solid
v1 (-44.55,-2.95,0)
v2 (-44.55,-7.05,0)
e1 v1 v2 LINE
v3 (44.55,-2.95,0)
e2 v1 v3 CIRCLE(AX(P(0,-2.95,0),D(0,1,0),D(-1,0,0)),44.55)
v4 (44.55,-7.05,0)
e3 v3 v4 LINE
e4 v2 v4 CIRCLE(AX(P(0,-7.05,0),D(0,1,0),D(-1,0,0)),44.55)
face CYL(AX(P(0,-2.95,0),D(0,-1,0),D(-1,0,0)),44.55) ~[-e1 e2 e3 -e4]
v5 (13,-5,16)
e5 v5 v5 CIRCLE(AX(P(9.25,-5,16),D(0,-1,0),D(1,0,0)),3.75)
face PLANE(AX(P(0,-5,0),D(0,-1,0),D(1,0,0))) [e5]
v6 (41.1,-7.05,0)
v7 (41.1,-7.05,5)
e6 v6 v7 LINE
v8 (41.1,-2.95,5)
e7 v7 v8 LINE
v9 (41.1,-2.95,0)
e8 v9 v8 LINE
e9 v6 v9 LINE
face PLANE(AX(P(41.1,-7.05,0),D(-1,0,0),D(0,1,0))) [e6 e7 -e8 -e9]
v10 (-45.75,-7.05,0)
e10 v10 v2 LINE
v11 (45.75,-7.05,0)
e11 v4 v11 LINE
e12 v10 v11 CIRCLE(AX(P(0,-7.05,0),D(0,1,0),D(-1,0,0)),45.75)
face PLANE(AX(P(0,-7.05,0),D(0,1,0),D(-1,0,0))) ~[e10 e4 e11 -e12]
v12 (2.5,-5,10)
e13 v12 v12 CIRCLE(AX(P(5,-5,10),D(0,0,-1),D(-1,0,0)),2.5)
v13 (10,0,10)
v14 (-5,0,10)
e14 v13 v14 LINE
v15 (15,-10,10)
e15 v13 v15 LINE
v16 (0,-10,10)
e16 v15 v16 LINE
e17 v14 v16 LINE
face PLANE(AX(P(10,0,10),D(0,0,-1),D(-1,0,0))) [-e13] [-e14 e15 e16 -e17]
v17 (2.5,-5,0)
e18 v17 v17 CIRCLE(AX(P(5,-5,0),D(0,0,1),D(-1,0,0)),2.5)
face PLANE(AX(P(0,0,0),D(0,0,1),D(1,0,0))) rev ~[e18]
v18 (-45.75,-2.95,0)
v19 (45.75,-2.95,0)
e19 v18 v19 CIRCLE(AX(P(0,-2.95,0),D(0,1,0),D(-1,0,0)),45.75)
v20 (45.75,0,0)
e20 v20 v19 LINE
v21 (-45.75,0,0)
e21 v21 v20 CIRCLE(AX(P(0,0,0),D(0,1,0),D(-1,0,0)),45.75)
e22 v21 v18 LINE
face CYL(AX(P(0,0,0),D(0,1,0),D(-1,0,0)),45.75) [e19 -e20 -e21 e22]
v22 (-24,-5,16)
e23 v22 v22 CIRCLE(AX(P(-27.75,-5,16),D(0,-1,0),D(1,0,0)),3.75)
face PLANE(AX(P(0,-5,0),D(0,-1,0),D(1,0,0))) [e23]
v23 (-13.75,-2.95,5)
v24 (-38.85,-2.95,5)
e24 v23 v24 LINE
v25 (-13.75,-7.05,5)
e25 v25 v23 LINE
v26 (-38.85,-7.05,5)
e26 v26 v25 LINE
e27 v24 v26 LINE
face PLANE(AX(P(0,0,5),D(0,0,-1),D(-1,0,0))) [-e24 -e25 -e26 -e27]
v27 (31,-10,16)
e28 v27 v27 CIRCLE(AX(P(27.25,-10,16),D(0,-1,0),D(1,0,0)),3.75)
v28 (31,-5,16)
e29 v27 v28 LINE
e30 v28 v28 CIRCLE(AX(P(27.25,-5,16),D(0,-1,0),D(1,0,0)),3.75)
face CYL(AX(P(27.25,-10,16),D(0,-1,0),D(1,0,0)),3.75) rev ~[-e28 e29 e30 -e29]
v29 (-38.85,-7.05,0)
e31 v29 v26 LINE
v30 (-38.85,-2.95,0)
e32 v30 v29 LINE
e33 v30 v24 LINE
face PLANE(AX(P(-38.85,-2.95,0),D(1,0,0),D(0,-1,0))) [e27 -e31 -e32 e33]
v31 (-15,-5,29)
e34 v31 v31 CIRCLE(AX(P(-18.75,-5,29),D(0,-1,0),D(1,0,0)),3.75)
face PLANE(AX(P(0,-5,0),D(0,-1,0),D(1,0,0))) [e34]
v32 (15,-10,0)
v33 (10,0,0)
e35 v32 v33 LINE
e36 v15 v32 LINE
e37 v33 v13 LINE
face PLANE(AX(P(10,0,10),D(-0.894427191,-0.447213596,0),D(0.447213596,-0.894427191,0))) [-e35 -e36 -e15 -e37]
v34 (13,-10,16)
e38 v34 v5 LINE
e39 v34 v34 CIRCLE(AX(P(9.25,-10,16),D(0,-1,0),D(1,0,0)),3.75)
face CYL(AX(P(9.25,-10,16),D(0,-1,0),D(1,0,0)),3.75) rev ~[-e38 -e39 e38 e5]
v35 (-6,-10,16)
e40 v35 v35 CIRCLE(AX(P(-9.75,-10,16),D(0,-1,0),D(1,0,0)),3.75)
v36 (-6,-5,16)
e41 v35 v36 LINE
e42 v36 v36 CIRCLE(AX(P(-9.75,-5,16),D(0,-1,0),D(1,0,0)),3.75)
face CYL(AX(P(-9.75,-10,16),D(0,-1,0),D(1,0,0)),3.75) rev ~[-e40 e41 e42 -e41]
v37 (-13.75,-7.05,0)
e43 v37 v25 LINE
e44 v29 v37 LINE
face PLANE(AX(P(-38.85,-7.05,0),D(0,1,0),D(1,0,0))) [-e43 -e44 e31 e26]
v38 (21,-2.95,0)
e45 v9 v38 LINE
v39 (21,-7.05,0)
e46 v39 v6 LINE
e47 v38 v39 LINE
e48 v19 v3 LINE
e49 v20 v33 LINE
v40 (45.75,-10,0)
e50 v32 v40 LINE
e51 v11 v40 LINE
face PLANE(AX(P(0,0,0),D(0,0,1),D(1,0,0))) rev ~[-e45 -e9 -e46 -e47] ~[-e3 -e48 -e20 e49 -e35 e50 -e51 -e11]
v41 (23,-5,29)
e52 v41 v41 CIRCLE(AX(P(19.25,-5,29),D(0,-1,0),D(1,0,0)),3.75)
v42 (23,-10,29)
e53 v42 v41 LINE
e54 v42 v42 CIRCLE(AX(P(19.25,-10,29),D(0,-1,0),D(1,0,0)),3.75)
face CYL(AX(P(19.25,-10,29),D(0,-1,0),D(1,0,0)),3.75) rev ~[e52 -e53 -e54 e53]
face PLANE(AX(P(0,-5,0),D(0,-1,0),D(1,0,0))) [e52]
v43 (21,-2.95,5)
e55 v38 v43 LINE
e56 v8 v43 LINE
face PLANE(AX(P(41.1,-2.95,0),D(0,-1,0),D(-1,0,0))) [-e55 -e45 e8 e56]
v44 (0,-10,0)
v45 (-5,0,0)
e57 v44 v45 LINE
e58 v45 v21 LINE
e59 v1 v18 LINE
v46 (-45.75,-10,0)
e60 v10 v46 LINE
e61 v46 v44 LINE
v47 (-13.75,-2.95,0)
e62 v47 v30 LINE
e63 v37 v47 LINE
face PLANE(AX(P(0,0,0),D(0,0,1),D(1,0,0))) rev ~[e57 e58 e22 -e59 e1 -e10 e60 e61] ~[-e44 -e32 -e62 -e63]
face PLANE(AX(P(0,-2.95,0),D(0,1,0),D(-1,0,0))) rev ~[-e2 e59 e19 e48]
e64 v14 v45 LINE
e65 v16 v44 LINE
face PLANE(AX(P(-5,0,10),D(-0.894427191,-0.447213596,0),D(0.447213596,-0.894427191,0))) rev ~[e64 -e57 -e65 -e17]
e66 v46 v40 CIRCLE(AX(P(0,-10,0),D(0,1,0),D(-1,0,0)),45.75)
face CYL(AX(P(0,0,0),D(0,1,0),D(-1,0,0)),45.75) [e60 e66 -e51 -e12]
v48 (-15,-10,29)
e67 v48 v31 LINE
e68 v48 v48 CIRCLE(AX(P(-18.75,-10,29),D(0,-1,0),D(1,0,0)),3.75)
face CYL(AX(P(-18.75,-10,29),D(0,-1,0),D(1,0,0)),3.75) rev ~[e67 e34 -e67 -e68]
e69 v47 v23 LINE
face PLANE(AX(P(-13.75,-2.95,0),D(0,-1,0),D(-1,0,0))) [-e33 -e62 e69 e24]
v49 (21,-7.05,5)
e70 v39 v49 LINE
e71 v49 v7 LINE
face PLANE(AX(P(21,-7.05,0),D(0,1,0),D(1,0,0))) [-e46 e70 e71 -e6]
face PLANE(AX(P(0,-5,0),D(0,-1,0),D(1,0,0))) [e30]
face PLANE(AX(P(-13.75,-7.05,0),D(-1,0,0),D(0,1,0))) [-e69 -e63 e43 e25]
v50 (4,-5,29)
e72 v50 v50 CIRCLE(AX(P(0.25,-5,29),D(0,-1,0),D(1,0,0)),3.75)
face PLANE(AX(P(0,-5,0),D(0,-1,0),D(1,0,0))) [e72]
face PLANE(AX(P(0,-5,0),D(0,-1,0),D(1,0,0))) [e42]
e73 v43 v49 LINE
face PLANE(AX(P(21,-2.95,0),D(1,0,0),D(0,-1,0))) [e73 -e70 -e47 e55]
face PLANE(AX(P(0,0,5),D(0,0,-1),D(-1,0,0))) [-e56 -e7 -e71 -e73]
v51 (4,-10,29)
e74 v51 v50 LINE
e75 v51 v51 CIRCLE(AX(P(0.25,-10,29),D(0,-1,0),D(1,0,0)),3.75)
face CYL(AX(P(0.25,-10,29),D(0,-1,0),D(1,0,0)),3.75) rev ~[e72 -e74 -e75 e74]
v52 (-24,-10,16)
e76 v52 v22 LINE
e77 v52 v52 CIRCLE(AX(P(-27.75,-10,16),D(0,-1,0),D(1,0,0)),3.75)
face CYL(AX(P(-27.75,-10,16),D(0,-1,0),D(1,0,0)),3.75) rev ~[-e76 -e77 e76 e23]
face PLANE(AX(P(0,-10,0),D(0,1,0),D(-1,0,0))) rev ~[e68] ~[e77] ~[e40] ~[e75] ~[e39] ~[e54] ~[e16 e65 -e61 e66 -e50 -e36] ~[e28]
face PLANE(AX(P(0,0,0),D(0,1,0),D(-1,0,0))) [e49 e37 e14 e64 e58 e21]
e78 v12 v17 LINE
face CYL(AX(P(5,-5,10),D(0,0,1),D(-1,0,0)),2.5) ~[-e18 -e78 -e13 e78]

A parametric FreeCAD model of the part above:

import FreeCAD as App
import Part
import Sketcher


def add_polygon(sketch, points):
    """Adds a closed chain of lines whose ends are joined by coincident constraints."""
    first, n = sketch.GeometryCount, len(points)
    for a, b in zip(points, points[1:] + points[:1]):
        sketch.addGeometry(Part.LineSegment(App.Vector(*a, 0), App.Vector(*b, 0)), False)
    for i in range(n):
        sketch.addConstraint(Sketcher.Constraint("Coincident", first + i, 2, first + (i + 1) % n, 1))

doc = App.newDocument("Part")
body = doc.addObject("PartDesign::Body", "Body")

# Sketch on XZ plane
sketch1 = doc.addObject("Sketcher::SketchObject", "Sketch")
body.addObject(sketch1)
sketch1.AttachmentSupport = (doc.XZ_Plane, [""])
sketch1.MapMode = "FlatFace"
sketch1.addGeometry(Part.Circle(App.Vector(0, 0, 0), App.Vector(0, 0, 1), 46), False)  # 0
add_polygon(sketch1, [(15, 10), (-10, 10), (-10, -10), (15, -10)])  # lines 1-4
sketch1.addConstraint([
    Sketcher.Constraint("Horizontal", 1),
    Sketcher.Constraint("Vertical", 2),
    Sketcher.Constraint("Horizontal", 3),
    Sketcher.Constraint("Vertical", 4),
    Sketcher.Constraint("Coincident", 0, 3, -1, 1),
    Sketcher.Constraint("Diameter", 0, 91.5),
    Sketcher.Constraint("DistanceY", 2, 2, 2, 1, 20.0),
    Sketcher.Constraint("DistanceX", 1, 2, 1, 1, 25.0),
    Sketcher.Constraint("DistanceX", 1, 2, -1, 1, 10.0),
    Sketcher.Constraint("DistanceY", -1, 1, 1, 2, 10.0),
])
pad1 = doc.addObject("PartDesign::Pad", "Pad")
body.addObject(pad1)
pad1.Profile = sketch1
pad1.Length = 10

# Sketch on XY plane
sketch2 = doc.addObject("Sketcher::SketchObject", "Sketch001")
body.addObject(sketch2)
sketch2.AttachmentSupport = (doc.XY_Plane, [""])
sketch2.MapMode = "FlatFace"
sketch2.AttachmentOffset = App.Placement(App.Vector(0, 0, -10), App.Rotation())
add_polygon(sketch2, [(10, 0), (15, -5), (15, 0)])  # lines 0-2
sketch2.addConstraint([
    Sketcher.Constraint("Vertical", 1),
    Sketcher.Constraint("Horizontal", 2),
    Sketcher.Constraint("PointOnObject", 1, 2, -1),
    Sketcher.Constraint("Equal", 2, 1),
    Sketcher.Constraint("DistanceX", 2, 2, 2, 1, 5.0),
    Sketcher.Constraint("DistanceX", -1, 1, 0, 2, 15.0),
])
pad2 = doc.addObject("PartDesign::Pad", "Pad001")
body.addObject(pad2)
pad2.Profile = sketch2
pad2.Type = "TwoLengths"
pad2.Length = 20.5
pad2.Length2 = 0.5

# Sketch on XY plane
sketch3 = doc.addObject("Sketcher::SketchObject", "Sketch002")
body.addObject(sketch3)
sketch3.AttachmentSupport = (doc.XY_Plane, [""])
sketch3.MapMode = "FlatFace"
sketch3.AttachmentOffset = App.Placement(App.Vector(0, 0, -10.5), App.Rotation())
add_polygon(sketch3, [(-12, -5), (-5, -5), (-5, 0), (-12, 0)])  # lines 0-3
sketch3.addConstraint([
    Sketcher.Constraint("Horizontal", 0),
    Sketcher.Constraint("Vertical", 1),
    Sketcher.Constraint("Horizontal", 2),
    Sketcher.Constraint("Vertical", 3),
    Sketcher.Constraint("PointOnObject", 1, 2, -1),
    Sketcher.Constraint("DistanceY", 1, 1, 1, 2, 5.0),
    Sketcher.Constraint("DistanceX", 0, 2, -1, 1, 5.0),
    Sketcher.Constraint("DistanceX", 0, 1, 0, 2, 7.2866),
])
pad3 = doc.addObject("PartDesign::Pad", "Pad002")
body.addObject(pad3)
pad3.Profile = sketch3
pad3.Length = 21

# Sketch on XY plane
sketch4 = doc.addObject("Sketcher::SketchObject", "Sketch003")
body.addObject(sketch4)
sketch4.AttachmentSupport = (doc.XY_Plane, [""])
sketch4.MapMode = "FlatFace"
sketch4.AttachmentOffset = App.Placement(App.Vector(0, 0, -10), App.Rotation())
add_polygon(sketch4, [(15, -10), (15, -5), (10, 0), (-5, 0), (-5, -5), (-10, -5), (-10, -10)])  # lines 0-6
sketch4.addConstraint([
    Sketcher.Constraint("Vertical", 0),
    Sketcher.Constraint("Horizontal", 2),
    Sketcher.Constraint("Vertical", 3),
    Sketcher.Constraint("Horizontal", 4),
    Sketcher.Constraint("Vertical", 5),
    Sketcher.Constraint("Horizontal", 6),
    Sketcher.Constraint("PointOnObject", 1, 2, -1),
    Sketcher.Constraint("Horizontal", 0, 2, 3, 2),
    Sketcher.Constraint("Equal", 4, 0),
    Sketcher.Constraint("Equal", 0, 3),
    Sketcher.Constraint("DistanceX", 4, 2, 4, 1, 5.0),
    Sketcher.Constraint("DistanceX", 2, 2, -1, 1, 5.0),
    Sketcher.Constraint("DistanceX", 1, 2, 0, 2, 5.0),
    Sketcher.Constraint("DistanceX", 2, 2, 2, 1, 15.0),
])
pad4 = doc.addObject("PartDesign::Pad", "Pad003")
body.addObject(pad4)
pad4.Profile = sketch4
pad4.Length = 21

# Sketch on XZ plane
sketch5 = doc.addObject("Sketcher::SketchObject", "Sketch004")
body.addObject(sketch5)
sketch5.AttachmentSupport = (doc.XZ_Plane, [""])
sketch5.MapMode = "FlatFace"
add_polygon(sketch5, [(0, 10), (10, 10), (10, -10), (0, -10)])  # lines 0-3
sketch5.addConstraint([
    Sketcher.Constraint("Horizontal", 0),
    Sketcher.Constraint("Vertical", 1),
    Sketcher.Constraint("Horizontal", 2),
    Sketcher.Constraint("Vertical", 3),
    Sketcher.Constraint("Symmetric", 2, 2, 3, 2, -1, 1),
    Sketcher.Constraint("DistanceX", 0, 1, 0, 2, 10.0),
    Sketcher.Constraint("DistanceY", 1, 2, 1, 1, 20.0),
])
pocket1 = doc.addObject("PartDesign::Pocket", "Pocket")
body.addObject(pocket1)
pocket1.Profile = sketch5
pocket1.Length = 10
pocket1.Reversed = True

# Sketch on XY plane
sketch6 = doc.addObject("Sketcher::SketchObject", "Sketch005")
body.addObject(sketch6)
sketch6.AttachmentSupport = (doc.XY_Plane, [""])
sketch6.MapMode = "FlatFace"
sketch6.AttachmentOffset = App.Placement(App.Vector(0, 0, 10), App.Rotation())
add_polygon(sketch6, [(0, 0), (0, -10), (-5, 0)])  # lines 0-2
sketch6.addConstraint([
    Sketcher.Constraint("Vertical", 0),
    Sketcher.Constraint("Horizontal", 2),
    Sketcher.Constraint("Coincident", 2, 2, -1, 1),
    Sketcher.Constraint("DistanceX", 2, 1, 2, 2, 5.0),
    Sketcher.Constraint("DistanceY", 0, 2, 0, 1, 10.0),
])
pocket2 = doc.addObject("PartDesign::Pocket", "Pocket001")
body.addObject(pocket2)
pocket2.Profile = sketch6
pocket2.Length = 20

# Sketch on XY plane
sketch7 = doc.addObject("Sketcher::SketchObject", "Sketch006")
body.addObject(sketch7)
sketch7.AttachmentSupport = (doc.XY_Plane, [""])
sketch7.MapMode = "FlatFace"
sketch7.AttachmentOffset = App.Placement(App.Vector(0, 0, 10), App.Rotation())
add_polygon(sketch7, [(10, -10), (10, 0), (15, -10)])  # lines 0-2
sketch7.addConstraint([
    Sketcher.Constraint("Vertical", 0),
    Sketcher.Constraint("Horizontal", 2),
    Sketcher.Constraint("PointOnObject", 0, 2, -1),
    Sketcher.Constraint("DistanceX", 2, 2, 2, 1, 5.0),
    Sketcher.Constraint("DistanceY", 0, 1, 0, 2, 10.0),
    Sketcher.Constraint("DistanceX", -1, 1, 0, 2, 10.0),
])
pocket3 = doc.addObject("PartDesign::Pocket", "Pocket002")
body.addObject(pocket3)
pocket3.Profile = sketch7
pocket3.Length = 20

# Sketch on XY plane
sketch8 = doc.addObject("Sketcher::SketchObject", "Sketch007")
body.addObject(sketch8)
sketch8.AttachmentSupport = (doc.XY_Plane, [""])
sketch8.MapMode = "FlatFace"
sketch8.AttachmentOffset = App.Placement(App.Vector(0, 0, 10), App.Rotation())
sketch8.addGeometry(Part.Circle(App.Vector(5, -5, 0), App.Vector(0, 0, 1), 2.5), False)
sketch8.addConstraint([
    Sketcher.Constraint("Diameter", 0, 5.0),
    Sketcher.Constraint("DistanceX", -1, 1, 0, 3, 5.0),
    Sketcher.Constraint("DistanceY", 0, 3, -1, 1, 5.0),
])
pad5 = doc.addObject("PartDesign::Pad", "Pad004")
body.addObject(pad5)
pad5.Profile = sketch8
pad5.Length = 20
pad5.Reversed = True

# Sketch on XY plane
sketch9 = doc.addObject("Sketcher::SketchObject", "Sketch008")
body.addObject(sketch9)
sketch9.AttachmentSupport = (doc.XY_Plane, [""])
sketch9.MapMode = "FlatFace"
add_polygon(sketch9, [(-46, 0), (-46, -10), (46, -10), (46, 0)])  # lines 0-3
sketch9.addConstraint([
    Sketcher.Constraint("Vertical", 0),
    Sketcher.Constraint("Horizontal", 1),
    Sketcher.Constraint("Vertical", 2),
    Sketcher.Constraint("Horizontal", 3),
    Sketcher.Constraint("Symmetric", 2, 2, 3, 2, -1, 1),
    Sketcher.Constraint("DistanceY", 0, 2, 0, 1, 10.0),
    Sketcher.Constraint("DistanceX", 1, 1, 1, 2, 91.5),
])
pocket4 = doc.addObject("PartDesign::Pocket", "Pocket003")
body.addObject(pocket4)
pocket4.Profile = sketch9
pocket4.Length = 50

# Sketch on XY plane
sketch10 = doc.addObject("Sketcher::SketchObject", "Sketch009")
body.addObject(sketch10)
sketch10.AttachmentSupport = (doc.XY_Plane, [""])
sketch10.MapMode = "FlatFace"
add_polygon(sketch10, [(-38.9, -3), (-13.8, -3), (-13.8, -7), (-38.9, -7)])  # lines 0-3
add_polygon(sketch10, [(21, -3), (41.1, -3), (41.1, -7), (21, -7)])  # lines 4-7
sketch10.addConstraint([
    Sketcher.Constraint("Horizontal", 0),
    Sketcher.Constraint("Vertical", 1),
    Sketcher.Constraint("Horizontal", 2),
    Sketcher.Constraint("Vertical", 3),
    Sketcher.Constraint("Horizontal", 4),
    Sketcher.Constraint("Vertical", 5),
    Sketcher.Constraint("Horizontal", 6),
    Sketcher.Constraint("Vertical", 7),
    Sketcher.Constraint("Horizontal", 3, 2, 4, 2),
    Sketcher.Constraint("Horizontal", 2, 2, 5, 2),
    Sketcher.Constraint("DistanceX", 0, 1, 0, 2, 25.1),
    Sketcher.Constraint("DistanceX", 4, 1, 4, 2, 20.1),
    Sketcher.Constraint("DistanceY", 1, 2, 1, 1, 4.1),
    Sketcher.Constraint("DistanceY", 0, 2, -1, 1, 2.95),
    Sketcher.Constraint("DistanceX", -1, 1, 6, 2, 21.0),
    Sketcher.Constraint("DistanceX", 0, 2, -1, 1, 13.75),
])
pocket5 = doc.addObject("PartDesign::Pocket", "Pocket004")
body.addObject(pocket5)
pocket5.Profile = sketch10
pocket5.Length = 5
pocket5.Reversed = True

# Sketch on XY plane
sketch11 = doc.addObject("Sketcher::SketchObject", "Sketch010")
body.addObject(sketch11)
sketch11.AttachmentSupport = (doc.XY_Plane, [""])
sketch11.MapMode = "FlatFace"
add_polygon(sketch11, [(-44.5, -7), (-45.8, -7), (-45.8, -3), (-44.5, -3)])  # lines 0-3
sketch11.addConstraint([
    Sketcher.Constraint("Horizontal", 0),
    Sketcher.Constraint("Vertical", 1),
    Sketcher.Constraint("Horizontal", 2),
    Sketcher.Constraint("Vertical", 3),
    Sketcher.Constraint("DistanceX", 0, 2, 0, 1, 1.2),
    Sketcher.Constraint("DistanceY", 1, 1, 1, 2, 4.1),
    Sketcher.Constraint("DistanceX", 0, 2, -1, 1, 45.75),
    Sketcher.Constraint("DistanceY", 0, 2, -1, 1, 7.05),
])
groove = doc.addObject("PartDesign::Groove", "Groove")
body.addObject(groove)
groove.Profile = sketch11
groove.ReferenceAxis = (sketch11, ["V_Axis"])
groove.Angle = 360

# Sketch on XZ plane
sketch12 = doc.addObject("Sketcher::SketchObject", "Sketch011")
body.addObject(sketch12)
sketch12.AttachmentSupport = (doc.XZ_Plane, [""])
sketch12.MapMode = "FlatFace"
sketch12.AttachmentOffset = App.Placement(App.Vector(0, 0, 10), App.Rotation())
sketch12.addGeometry([
    Part.Circle(App.Vector(27.2, 16, 0), App.Vector(0, 0, 1), 3.8),  # 0
    Part.Circle(App.Vector(9.2, 16, 0), App.Vector(0, 0, 1), 3.8),  # 1
    Part.Circle(App.Vector(-9.8, 16, 0), App.Vector(0, 0, 1), 3.8),  # 2
    Part.Circle(App.Vector(-27.8, 16, 0), App.Vector(0, 0, 1), 3.8),  # 3
    Part.Circle(App.Vector(-18.8, 29, 0), App.Vector(0, 0, 1), 3.8),  # 4
    Part.Circle(App.Vector(0.2, 29, 0), App.Vector(0, 0, 1), 3.8),  # 5
    Part.Circle(App.Vector(19.2, 29, 0), App.Vector(0, 0, 1), 3.8),  # 6
], False)
sketch12.addConstraint([
    Sketcher.Constraint("Equal", 0, 1),
    Sketcher.Constraint("Equal", 1, 2),
    Sketcher.Constraint("Equal", 2, 3),
    Sketcher.Constraint("Equal", 3, 4),
    Sketcher.Constraint("Equal", 4, 5),
    Sketcher.Constraint("Equal", 5, 6),
    Sketcher.Constraint("Horizontal", 0, 3, 1, 3),
    Sketcher.Constraint("Horizontal", 1, 3, 2, 3),
    Sketcher.Constraint("Horizontal", 2, 3, 3, 3),
    Sketcher.Constraint("Horizontal", 4, 3, 5, 3),
    Sketcher.Constraint("Horizontal", 5, 3, 6, 3),
    Sketcher.Constraint("Diameter", 0, 7.5),
    Sketcher.Constraint("DistanceY", -1, 1, 0, 3, 16.0),
    Sketcher.Constraint("DistanceY", -1, 1, 4, 3, 29.0),
    Sketcher.Constraint("DistanceX", 1, 3, 0, 3, 18.0),
    Sketcher.Constraint("DistanceX", 2, 3, 1, 3, 19.0),
    Sketcher.Constraint("DistanceX", 3, 3, 2, 3, 18.0),
    Sketcher.Constraint("DistanceX", 4, 3, 2, 3, 9.0),
    Sketcher.Constraint("DistanceX", 5, 3, 1, 3, 9.0),
    Sketcher.Constraint("DistanceX", 6, 3, 0, 3, 8.0),
    Sketcher.Constraint("DistanceX", -1, 1, 0, 3, 27.25),
])
pocket6 = doc.addObject("PartDesign::Pocket", "Pocket005")
body.addObject(pocket6)
pocket6.Profile = sketch12
pocket6.Length = 5

doc.recompute()
